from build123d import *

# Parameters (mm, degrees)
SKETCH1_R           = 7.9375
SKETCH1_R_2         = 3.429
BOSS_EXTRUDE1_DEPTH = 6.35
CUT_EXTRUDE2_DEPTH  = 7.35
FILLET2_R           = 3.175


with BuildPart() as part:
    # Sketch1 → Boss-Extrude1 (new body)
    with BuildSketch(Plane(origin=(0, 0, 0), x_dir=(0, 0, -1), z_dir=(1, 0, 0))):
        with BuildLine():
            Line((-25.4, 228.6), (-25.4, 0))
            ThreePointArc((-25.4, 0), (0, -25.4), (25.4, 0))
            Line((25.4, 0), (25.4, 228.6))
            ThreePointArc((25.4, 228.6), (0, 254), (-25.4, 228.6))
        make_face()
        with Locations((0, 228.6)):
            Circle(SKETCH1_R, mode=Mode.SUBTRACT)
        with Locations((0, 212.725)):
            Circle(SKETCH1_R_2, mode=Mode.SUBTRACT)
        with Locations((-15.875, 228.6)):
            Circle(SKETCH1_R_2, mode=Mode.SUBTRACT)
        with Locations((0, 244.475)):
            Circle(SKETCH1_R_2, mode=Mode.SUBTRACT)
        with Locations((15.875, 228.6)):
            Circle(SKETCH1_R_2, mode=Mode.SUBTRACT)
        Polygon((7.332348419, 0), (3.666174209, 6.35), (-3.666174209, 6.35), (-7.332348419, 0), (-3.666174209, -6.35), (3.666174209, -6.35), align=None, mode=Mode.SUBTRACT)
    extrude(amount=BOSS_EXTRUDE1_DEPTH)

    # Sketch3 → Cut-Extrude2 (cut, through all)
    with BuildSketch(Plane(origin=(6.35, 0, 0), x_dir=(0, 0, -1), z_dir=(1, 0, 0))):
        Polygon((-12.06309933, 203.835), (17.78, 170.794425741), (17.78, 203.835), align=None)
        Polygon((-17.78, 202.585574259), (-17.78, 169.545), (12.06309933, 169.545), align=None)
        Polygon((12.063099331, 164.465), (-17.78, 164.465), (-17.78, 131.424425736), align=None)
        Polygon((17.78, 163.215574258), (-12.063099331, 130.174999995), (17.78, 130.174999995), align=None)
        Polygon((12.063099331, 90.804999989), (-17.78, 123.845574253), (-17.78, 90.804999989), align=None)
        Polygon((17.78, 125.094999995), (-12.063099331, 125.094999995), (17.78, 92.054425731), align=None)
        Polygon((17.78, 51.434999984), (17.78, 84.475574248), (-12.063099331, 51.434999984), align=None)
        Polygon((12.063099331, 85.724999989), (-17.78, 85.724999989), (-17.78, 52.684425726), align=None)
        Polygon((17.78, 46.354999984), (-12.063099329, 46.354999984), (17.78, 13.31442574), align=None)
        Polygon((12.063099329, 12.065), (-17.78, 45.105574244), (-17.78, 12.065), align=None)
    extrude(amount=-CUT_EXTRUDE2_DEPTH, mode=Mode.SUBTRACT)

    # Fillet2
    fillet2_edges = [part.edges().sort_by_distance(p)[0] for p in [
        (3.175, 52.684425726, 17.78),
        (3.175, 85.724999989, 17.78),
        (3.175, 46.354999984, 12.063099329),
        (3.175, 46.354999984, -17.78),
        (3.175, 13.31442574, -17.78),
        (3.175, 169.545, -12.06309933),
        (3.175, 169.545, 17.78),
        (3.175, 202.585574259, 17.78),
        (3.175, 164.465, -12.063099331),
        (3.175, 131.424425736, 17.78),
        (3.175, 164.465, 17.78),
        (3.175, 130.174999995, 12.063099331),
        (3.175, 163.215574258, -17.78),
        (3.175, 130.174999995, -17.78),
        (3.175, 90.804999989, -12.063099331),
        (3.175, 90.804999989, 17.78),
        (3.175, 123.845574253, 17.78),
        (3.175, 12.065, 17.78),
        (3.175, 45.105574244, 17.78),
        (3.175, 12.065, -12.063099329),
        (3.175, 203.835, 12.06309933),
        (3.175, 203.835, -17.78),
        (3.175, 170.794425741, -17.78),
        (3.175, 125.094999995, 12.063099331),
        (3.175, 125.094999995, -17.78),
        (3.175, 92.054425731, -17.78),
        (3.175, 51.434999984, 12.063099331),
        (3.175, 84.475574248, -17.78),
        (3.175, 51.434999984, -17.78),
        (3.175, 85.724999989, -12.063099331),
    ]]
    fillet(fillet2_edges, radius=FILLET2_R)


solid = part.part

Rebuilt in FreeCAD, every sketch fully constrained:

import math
import FreeCAD as App
import Part
import Sketcher
Q = App.Units.Quantity


def edges_at(feature, points):
    """Names of the edges that pass closest to the given points."""
    edges = feature.Shape.Edges
    near = lambda p: min(range(len(edges)), key=lambda i: edges[i].distToShape(Part.Vertex(*p))[0])
    return sorted({f"Edge{near(p) + 1}" for p in points})


def add_polygon(sketch, points):
    """Adds a closed chain of lines whose ends are joined by coincident constraints."""
    first, n = sketch.GeometryCount, len(points)
    for a, b in zip(points, points[1:] + points[:1]):
        sketch.addGeometry(Part.LineSegment(App.Vector(*a, 0), App.Vector(*b, 0)), False)
    for i in range(n):
        sketch.addConstraint(Sketcher.Constraint("Coincident", first + i, 2, first + (i + 1) % n, 1))

doc = App.newDocument("Part")
params = doc.addObject("Spreadsheet::Sheet", "Params")
for row, (alias, value) in enumerate([
    ("sketch1_radius", "1 in"),
    ("sketch1_diameter", "0.27 in"),
    ("sketch1_width", "9 in"),
    ("sketch1_diameter2", "0.625 in"),
    ("pad1_length", "0.25 in"),
    ("fillet_radius", "0.125 in"),
], start=1):
    params.set(f"A{row}", alias)
    params.set(f"B{row}", "=" + value)
    params.setAlias(f"B{row}", alias)

body = doc.addObject("PartDesign::Body", "Body")

# Sketch on YZ plane
sketch1 = body.newObject("Sketcher::SketchObject", "Sketch")
sketch1.AttachmentSupport = (doc.getObject("YZ_Plane"), [""])
sketch1.MapMode = "FlatFace"
sketch1.addGeometry(Part.LineSegment(App.Vector(228.6, 25.4, 0), App.Vector(0, 25.4, 0)), False)  # 0
sketch1.addGeometry(Part.ArcOfCircle(Part.Circle(App.Vector(0, 0, 0), App.Vector(0, 0, 1), 25.4), math.radians(90), math.radians(270)), False)  # 1
sketch1.addGeometry(Part.LineSegment(App.Vector(0, -25.4, 0), App.Vector(228.6, -25.4, 0)), False)  # 2
sketch1.addGeometry(Part.ArcOfCircle(Part.Circle(App.Vector(228.6, 0, 0), App.Vector(0, 0, 1), 25.4), math.radians(-90), math.radians(90)), False)  # 3
add_polygon(sketch1, [(6.3, -3.7), (0, -7.3), (-6.3, -3.7), (-6.3, 3.7), (0, 7.3), (6.3, 3.7)])  # lines 4-9
sketch1.addGeometry(Part.Circle(App.Vector(228.6, 15.9, 0), App.Vector(0, 0, 1), 3.4), False)  # 10
sketch1.addGeometry(Part.Circle(App.Vector(212.7, 0, 0), App.Vector(0, 0, 1), 3.4), False)  # 11
sketch1.addGeometry(Part.Circle(App.Vector(228.6, 0, 0), App.Vector(0, 0, 1), 7.9), False)  # 12
sketch1.addGeometry(Part.Circle(App.Vector(244.5, 0, 0), App.Vector(0, 0, 1), 3.4), False)  # 13
sketch1.addGeometry(Part.Circle(App.Vector(228.6, -15.9, 0), App.Vector(0, 0, 1), 3.4), False)  # 14
sketch1.addConstraint([
    Sketcher.Constraint("Tangent", 0, 2, 1, 1),
    Sketcher.Constraint("Tangent", 1, 2, 2, 1),
    Sketcher.Constraint("Tangent", 2, 2, 3, 1),
    Sketcher.Constraint("Tangent", 3, 2, 0, 1),
    Sketcher.Constraint("Horizontal", 0),
    Sketcher.Constraint("Horizontal", 2),
    Sketcher.Constraint("Vertical", 6),
    Sketcher.Constraint("Vertical", 9),
    Sketcher.Constraint("Coincident", 1, 3, -1, 1),
    Sketcher.Constraint("Coincident", 12, 3, 3, 3),
    Sketcher.Constraint("Equal", 10, 11),
    Sketcher.Constraint("Equal", 11, 13),
    Sketcher.Constraint("Equal", 13, 14),
    Sketcher.Constraint("Symmetric", 4, 2, 7, 2, -1, 1),
    Sketcher.Constraint("Symmetric", 5, 2, 8, 2, -1, 1),
    Sketcher.Constraint("Symmetric", 10, 3, 14, 3, -1),
    Sketcher.Constraint("PointOnObject", 11, 3, -1),
    Sketcher.Constraint("PointOnObject", 13, 3, -1),
    Sketcher.Constraint("PointOnObject", 4, 2, -2),
    Sketcher.Constraint("Parallel", 4, 7),
    Sketcher.Constraint("Horizontal", 6, 2, 8, 2),
    Sketcher.Constraint("Vertical", 3, 3, 10, 3),
    Sketcher.Constraint("Radius", 1, Q("1 in")),
    Sketcher.Constraint("Diameter", 10, Q("0.27 in")),
    Sketcher.Constraint("DistanceX", 0, 2, 0, 1, Q("9 in")),
    Sketcher.Constraint("Diameter", 12, Q("0.625 in")),
    Sketcher.Constraint("Angle", 4, Q("-150 deg")),
    Sketcher.Constraint("DistanceX", 6, 2, 8, 2, Q("0.5 in")),
    Sketcher.Constraint("DistanceX", 11, 3, 13, 3, Q("1.25 in")),
    Sketcher.Constraint("DistanceY", 14, 3, 10, 3, Q("1.25 in")),
    Sketcher.Constraint("DistanceX", -1, 1, 11, 3, Q("8.375 in")),
    Sketcher.Constraint("DistanceY", 6, 1, 6, 2, 7.332348),
])
sketch1.setExpression("Constraints[28]", "Params.sketch1_radius")
sketch1.setExpression("Constraints[29]", "Params.sketch1_diameter")
sketch1.setExpression("Constraints[30]", "Params.sketch1_width")
sketch1.setExpression("Constraints[31]", "Params.sketch1_diameter2")
pad1 = body.newObject("PartDesign::Pad", "Pad")
pad1.Profile = sketch1
pad1.setExpression("Length", "Params.pad1_length")

# Sketch on YZ plane
sketch2 = body.newObject("Sketcher::SketchObject", "Sketch001")
sketch2.AttachmentSupport = (doc.getObject("YZ_Plane"), [""])
sketch2.MapMode = "FlatFace"
sketch2.AttachmentOffset = App.Placement(App.Vector(0, 0, 0.25 * 25.4), App.Rotation())
add_polygon(sketch2, [(204, 12), (171, -18), (204, -18)])  # lines 0-2
add_polygon(sketch2, [(203, 18), (170, 18), (170, -12)])  # lines 3-5
add_polygon(sketch2, [(164, -12), (164, 18), (131, 18)])  # lines 6-8
add_polygon(sketch2, [(163, -18), (130, 12), (130, -18)])  # lines 9-11
add_polygon(sketch2, [(91, -12), (124, 18), (91, 18)])  # lines 12-14
add_polygon(sketch2, [(125, -18), (125, 12), (92, -18)])  # lines 15-17
add_polygon(sketch2, [(51, -18), (84, -18), (51, 12)])  # lines 18-20
add_polygon(sketch2, [(86, -12), (86, 18), (53, 18)])  # lines 21-23
add_polygon(sketch2, [(46, -18), (46, 12), (13, -18)])  # lines 24-26
add_polygon(sketch2, [(12, -12), (45, 18), (12, 18)])  # lines 27-29
sketch2.addConstraint([
    Sketcher.Constraint("Horizontal", 1),
    Sketcher.Constraint("Vertical", 2),
    Sketcher.Constraint("Horizontal", 3),
    Sketcher.Constraint("Vertical", 4),
    Sketcher.Constraint("Vertical", 6),
    Sketcher.Constraint("Horizontal", 7),
    Sketcher.Constraint("Vertical", 10),
    Sketcher.Constraint("Horizontal", 11),
    Sketcher.Constraint("Horizontal", 13),
    Sketcher.Constraint("Vertical", 14),
    Sketcher.Constraint("Vertical", 15),
    Sketcher.Constraint("Horizontal", 17),
    Sketcher.Constraint("Horizontal", 18),
    Sketcher.Constraint("Vertical", 20),
    Sketcher.Constraint("Vertical", 21),
    Sketcher.Constraint("Horizontal", 22),
    Sketcher.Constraint("Vertical", 24),
    Sketcher.Constraint("Horizontal", 26),
    Sketcher.Constraint("Horizontal", 28),
    Sketcher.Constraint("Vertical", 29),
    Sketcher.Constraint("Parallel", 0, 5),
    Sketcher.Constraint("Parallel", 8, 9),
    Sketcher.Constraint("Parallel", 5, 12),
    Sketcher.Constraint("Parallel", 12, 16),
    Sketcher.Constraint("Parallel", 9, 19),
    Sketcher.Constraint("Parallel", 19, 23),
    Sketcher.Constraint("Parallel", 16, 25),
    Sketcher.Constraint("Parallel", 25, 27),
    Sketcher.Constraint("Horizontal", 5, 2, 6, 2),
    Sketcher.Constraint("Horizontal", 4, 2, 8, 2),
    Sketcher.Constraint("Horizontal", 2, 2, 9, 2),
    Sketcher.Constraint("Horizontal", 1, 2, 10, 2),
    Sketcher.Constraint("Horizontal", 7, 2, 12, 2),
    Sketcher.Constraint("Horizontal", 8, 2, 14, 2),
    Sketcher.Constraint("Horizontal", 9, 2, 15, 2),
    Sketcher.Constraint("Horizontal", 11, 2, 16, 2),
    Sketcher.Constraint("Horizontal", 17, 2, 18, 2),
    Sketcher.Constraint("Horizontal", 15, 2, 19, 2),
    Sketcher.Constraint("Horizontal", 13, 2, 21, 2),
    Sketcher.Constraint("Horizontal", 14, 2, 23, 2),
    Sketcher.Constraint("Horizontal", 19, 2, 24, 2),
    Sketcher.Constraint("Horizontal", 20, 2, 25, 2),
    Sketcher.Constraint("Horizontal", 22, 2, 27, 2),
    Sketcher.Constraint("Horizontal", 23, 2, 29, 2),
    Sketcher.Constraint("Equal", 1, 3),
    Sketcher.Constraint("Equal", 3, 7),
    Sketcher.Constraint("DistanceY", 0, 2, -1, 1, Q("0.7 in")),
    Sketcher.Constraint("DistanceY", -1, 1, 3, 2, Q("0.7 in")),
    Sketcher.Constraint("DistanceX", 6, 2, 3, 2, Q("0.2 in")),
    Sketcher.Constraint("DistanceX", 13, 2, 6, 2, Q("2.9 in")),
    Sketcher.Constraint("DistanceX", 15, 2, 9, 2, Q("0.2 in")),
    Sketcher.Constraint("DistanceX", 21, 2, 13, 2, Q("0.2 in")),
    Sketcher.Constraint("DistanceX", 24, 2, 19, 2, Q("0.2 in")),
    Sketcher.Constraint("DistanceX", 3, 2, 2, 2, Q("1.35 in")),
    Sketcher.Constraint("DistanceX", 9, 2, 6, 2, Q("1.35 in")),
    Sketcher.Constraint("DistanceX", 19, 2, 13, 2, Q("1.55 in")),
    Sketcher.Constraint("DistanceX", 28, 2, 24, 2, Q("1.35 in")),
    Sketcher.Constraint("DistanceX", -1, 1, 1, 2, Q("8.025 in")),
    Sketcher.Constraint("DistanceY", 2, 1, 2, 2, 29.843099),
    Sketcher.Constraint("DistanceX", 1, 1, 1, 2, 33.040574),
])
pocket1 = body.newObject("PartDesign::Pocket", "Pocket")
pocket1.Profile = sketch2
pocket1.Type = "ThroughAll"
doc.recompute()

fillet = body.newObject("PartDesign::Fillet", "Fillet")
fillet.Base = (pocket1, edges_at(pocket1, [
    (3.175, 52.684, 17.78),
    (3.175, 85.725, 17.78),
    (3.175, 46.355, 12.063),
    (3.175, 46.355, -17.78),
    (3.175, 13.314, -17.78),
    (3.175, 169.545, -12.063),
    (3.175, 169.545, 17.78),
    (3.175, 202.586, 17.78),
    (3.175, 164.465, -12.063),
    (3.175, 131.424, 17.78),
    (3.175, 164.465, 17.78),
    (3.175, 130.175, 12.063),
    (3.175, 163.216, -17.78),
    (3.175, 130.175, -17.78),
    (3.175, 90.805, -12.063),
    (3.175, 90.805, 17.78),
    (3.175, 123.846, 17.78),
    (3.175, 12.065, 17.78),
    (3.175, 45.106, 17.78),
    (3.175, 12.065, -12.063),
    (3.175, 203.835, 12.063),
    (3.175, 203.835, -17.78),
    (3.175, 170.794, -17.78),
    (3.175, 125.095, 12.063),
    (3.175, 125.095, -17.78),
    (3.175, 92.054, -17.78),
    (3.175, 51.435, 12.063),
    (3.175, 84.476, -17.78),
    (3.175, 51.435, -17.78),
    (3.175, 85.725, -12.063),
]))
fillet.setExpression("Radius", "Params.fillet_radius")

doc.recompute()
